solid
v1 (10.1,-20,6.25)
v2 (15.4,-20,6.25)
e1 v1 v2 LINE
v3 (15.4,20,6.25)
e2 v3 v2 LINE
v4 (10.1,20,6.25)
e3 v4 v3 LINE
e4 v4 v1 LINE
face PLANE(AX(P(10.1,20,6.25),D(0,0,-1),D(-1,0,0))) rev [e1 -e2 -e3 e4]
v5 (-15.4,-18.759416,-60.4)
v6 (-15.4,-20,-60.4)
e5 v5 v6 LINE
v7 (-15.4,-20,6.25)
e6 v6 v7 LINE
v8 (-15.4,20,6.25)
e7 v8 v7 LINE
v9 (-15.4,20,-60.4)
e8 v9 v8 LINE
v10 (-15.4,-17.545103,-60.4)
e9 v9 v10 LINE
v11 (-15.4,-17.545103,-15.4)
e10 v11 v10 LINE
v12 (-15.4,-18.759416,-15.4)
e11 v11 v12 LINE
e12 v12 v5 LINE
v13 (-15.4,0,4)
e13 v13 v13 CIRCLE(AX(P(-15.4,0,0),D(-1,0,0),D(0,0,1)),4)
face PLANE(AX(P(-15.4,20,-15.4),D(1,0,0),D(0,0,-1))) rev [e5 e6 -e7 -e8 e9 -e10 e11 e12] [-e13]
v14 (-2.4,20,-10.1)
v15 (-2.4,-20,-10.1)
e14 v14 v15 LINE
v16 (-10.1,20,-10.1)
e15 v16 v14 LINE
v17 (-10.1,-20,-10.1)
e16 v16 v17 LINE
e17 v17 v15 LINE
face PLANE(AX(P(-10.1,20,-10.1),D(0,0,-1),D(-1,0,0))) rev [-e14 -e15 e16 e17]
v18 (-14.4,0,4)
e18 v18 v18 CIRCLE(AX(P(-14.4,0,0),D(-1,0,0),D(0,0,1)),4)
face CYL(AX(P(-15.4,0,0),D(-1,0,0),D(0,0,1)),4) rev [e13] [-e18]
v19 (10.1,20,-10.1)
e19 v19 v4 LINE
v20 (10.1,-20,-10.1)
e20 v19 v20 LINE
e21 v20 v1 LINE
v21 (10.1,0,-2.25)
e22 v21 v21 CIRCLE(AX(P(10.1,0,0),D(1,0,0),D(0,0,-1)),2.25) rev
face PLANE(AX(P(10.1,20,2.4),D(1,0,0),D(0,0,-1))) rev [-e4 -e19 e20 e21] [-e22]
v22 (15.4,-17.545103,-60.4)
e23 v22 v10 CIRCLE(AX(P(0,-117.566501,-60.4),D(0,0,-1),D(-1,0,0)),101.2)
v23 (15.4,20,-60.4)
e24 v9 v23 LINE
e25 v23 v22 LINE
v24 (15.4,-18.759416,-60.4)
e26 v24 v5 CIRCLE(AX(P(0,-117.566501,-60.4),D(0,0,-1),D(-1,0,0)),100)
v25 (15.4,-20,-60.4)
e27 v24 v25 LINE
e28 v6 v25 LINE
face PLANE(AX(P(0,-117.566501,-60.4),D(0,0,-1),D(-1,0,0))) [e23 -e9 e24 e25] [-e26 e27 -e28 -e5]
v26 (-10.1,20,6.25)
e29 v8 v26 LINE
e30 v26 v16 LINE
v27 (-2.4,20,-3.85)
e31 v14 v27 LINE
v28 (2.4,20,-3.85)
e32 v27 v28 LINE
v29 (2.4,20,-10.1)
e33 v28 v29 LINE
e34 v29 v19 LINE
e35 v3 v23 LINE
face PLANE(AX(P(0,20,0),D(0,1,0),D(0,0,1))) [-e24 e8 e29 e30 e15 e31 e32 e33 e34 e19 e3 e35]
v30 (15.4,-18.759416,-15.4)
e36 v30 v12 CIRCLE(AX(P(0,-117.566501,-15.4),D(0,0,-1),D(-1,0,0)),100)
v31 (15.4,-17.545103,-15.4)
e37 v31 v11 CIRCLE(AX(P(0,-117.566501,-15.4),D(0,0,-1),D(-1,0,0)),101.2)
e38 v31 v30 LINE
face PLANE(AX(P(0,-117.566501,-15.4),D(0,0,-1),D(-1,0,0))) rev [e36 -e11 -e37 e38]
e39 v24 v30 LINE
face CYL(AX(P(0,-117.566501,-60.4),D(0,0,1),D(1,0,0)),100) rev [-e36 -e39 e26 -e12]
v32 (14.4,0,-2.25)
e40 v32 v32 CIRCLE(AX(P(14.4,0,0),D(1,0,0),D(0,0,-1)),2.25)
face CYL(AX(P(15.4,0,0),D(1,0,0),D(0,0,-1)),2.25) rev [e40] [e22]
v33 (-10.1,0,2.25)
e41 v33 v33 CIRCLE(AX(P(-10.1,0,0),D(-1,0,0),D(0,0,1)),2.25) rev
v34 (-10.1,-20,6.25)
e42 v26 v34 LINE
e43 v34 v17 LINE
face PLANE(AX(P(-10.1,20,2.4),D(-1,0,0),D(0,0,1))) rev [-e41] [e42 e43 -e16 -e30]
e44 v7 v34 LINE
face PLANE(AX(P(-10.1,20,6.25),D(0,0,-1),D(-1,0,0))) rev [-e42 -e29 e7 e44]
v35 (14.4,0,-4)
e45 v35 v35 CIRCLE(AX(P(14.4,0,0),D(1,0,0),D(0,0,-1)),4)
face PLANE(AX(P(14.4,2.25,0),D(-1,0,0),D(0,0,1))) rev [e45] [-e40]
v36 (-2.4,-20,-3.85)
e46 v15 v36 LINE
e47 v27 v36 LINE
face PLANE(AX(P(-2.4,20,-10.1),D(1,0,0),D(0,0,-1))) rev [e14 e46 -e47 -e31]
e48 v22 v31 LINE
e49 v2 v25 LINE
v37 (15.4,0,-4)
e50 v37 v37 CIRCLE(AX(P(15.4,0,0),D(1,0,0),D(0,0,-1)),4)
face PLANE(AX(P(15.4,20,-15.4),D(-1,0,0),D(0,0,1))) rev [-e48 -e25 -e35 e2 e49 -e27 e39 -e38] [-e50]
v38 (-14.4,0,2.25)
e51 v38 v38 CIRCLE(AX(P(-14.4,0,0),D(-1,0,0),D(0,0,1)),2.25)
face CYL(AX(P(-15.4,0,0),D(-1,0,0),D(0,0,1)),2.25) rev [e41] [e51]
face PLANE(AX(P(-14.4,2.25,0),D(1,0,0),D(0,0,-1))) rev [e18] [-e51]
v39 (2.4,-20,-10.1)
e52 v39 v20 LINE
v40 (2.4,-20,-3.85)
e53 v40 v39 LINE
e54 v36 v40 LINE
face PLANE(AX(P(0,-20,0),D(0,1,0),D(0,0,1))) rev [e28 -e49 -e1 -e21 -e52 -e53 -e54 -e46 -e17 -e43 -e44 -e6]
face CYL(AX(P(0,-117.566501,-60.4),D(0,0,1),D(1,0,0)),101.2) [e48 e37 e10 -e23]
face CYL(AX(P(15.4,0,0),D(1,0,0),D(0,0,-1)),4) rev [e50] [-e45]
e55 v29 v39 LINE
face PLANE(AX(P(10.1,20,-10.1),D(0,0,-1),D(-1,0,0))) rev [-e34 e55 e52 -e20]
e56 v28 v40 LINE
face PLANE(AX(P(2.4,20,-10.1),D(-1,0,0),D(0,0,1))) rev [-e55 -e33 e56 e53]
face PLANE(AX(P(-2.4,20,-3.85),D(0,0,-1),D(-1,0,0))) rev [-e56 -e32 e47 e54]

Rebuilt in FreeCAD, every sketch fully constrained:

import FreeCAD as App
import Part
import Sketcher
from FreeCAD import Vector
Q = App.Units.Quantity


def add_polygon(sketch, points):
    """Adds a closed chain of lines whose ends are joined by coincident constraints."""
    first, n = sketch.GeometryCount, len(points)
    for a, b in zip(points, points[1:] + points[:1]):
        sketch.addGeometry(Part.LineSegment(App.Vector(*a, 0), App.Vector(*b, 0)), False)
    for i in range(n):
        sketch.addConstraint(Sketcher.Constraint("Coincident", first + i, 2, first + (i + 1) % n, 1))

doc = App.newDocument("Part")
body = doc.addObject("PartDesign::Body", "Body")

# Sketch on XZ plane
sketch1 = doc.addObject("Sketcher::SketchObject", "Sketch")
body.addObject(sketch1)
sketch1.AttachmentSupport = (doc.XZ_Plane, [""])
sketch1.MapMode = "FlatFace"
add_polygon(sketch1, [(-3.9, 2.4), (-3.9, -2.4), (-10.1, -2.4), (-10.1, -10.1), (-2.4, -10.1), (-2.4, -3.9), (2.4, -3.9), (2.4, -10.1), (10.1, -10.1), (10.1, -2.4), (3.9, -2.4), (3.9, 2.4), (10.1, 2.4), (10.1, 6.2), (15.4, 6.2), (15.4, -15.4), (-15.4, -15.4), (-15.4, 6.2), (-10.1, 6.2), (-10.1, 2.4)])  # lines 0-19
sketch1.addConstraint([
    Sketcher.Constraint("Vertical", 0),
    Sketcher.Constraint("Horizontal", 1),
    Sketcher.Constraint("Vertical", 2),
    Sketcher.Constraint("Horizontal", 3),
    Sketcher.Constraint("Vertical", 4),
    Sketcher.Constraint("Horizontal", 5),
    Sketcher.Constraint("Vertical", 6),
    Sketcher.Constraint("Horizontal", 7),
    Sketcher.Constraint("Vertical", 8),
    Sketcher.Constraint("Horizontal", 9),
    Sketcher.Constraint("Vertical", 10),
    Sketcher.Constraint("Horizontal", 11),
    Sketcher.Constraint("Vertical", 12),
    Sketcher.Constraint("Horizontal", 13),
    Sketcher.Constraint("Vertical", 14),
    Sketcher.Constraint("Horizontal", 15),
    Sketcher.Constraint("Vertical", 16),
    Sketcher.Constraint("Horizontal", 17),
    Sketcher.Constraint("Vertical", 18),
    Sketcher.Constraint("Horizontal", 19),
    Sketcher.Constraint("Symmetric", 0, 2, 10, 2, -1, 1),
    Sketcher.Constraint("Symmetric", 8, 2, 18, 2, -1, 1),
    Sketcher.Constraint("Symmetric", 3, 2, 6, 2, -2),
    Sketcher.Constraint("Symmetric", 1, 2, 8, 2, -2),
    Sketcher.Constraint("Symmetric", 13, 2, 16, 2, -2),
    Sketcher.Constraint("Vertical", 8, 2, 11, 2),
    Sketcher.Constraint("Equal", 5, 0),
    Sketcher.Constraint("Equal", 7, 2),
    Sketcher.Constraint("Equal", 19, 4),
    Sketcher.Constraint("DistanceX", 3, 1, 3, 2, Q("7.7 mm")),
    Sketcher.Constraint("DistanceX", 5, 1, 5, 2, Q("4.8 mm")),
    Sketcher.Constraint("DistanceX", 13, 1, 13, 2, Q("5.3 mm")),
    Sketcher.Constraint("DistanceY", 14, 2, 8, 2, Q("13 mm")),
    Sketcher.Constraint("DistanceX", 1, 2, 1, 1, Q("6.25 mm")),
    Sketcher.Constraint("DistanceY", 12, 1, 12, 2, Q("3.85 mm")),
])
pad1 = doc.addObject("PartDesign::Pad", "Pad")
body.addObject(pad1)
pad1.Profile = sketch1
pad1.Length = 40
pad1.Midplane = True

# Sketch on YZ plane
sketch2 = doc.addObject("Sketcher::SketchObject", "Sketch001")
body.addObject(sketch2)
sketch2.AttachmentSupport = (doc.YZ_Plane, [""])
sketch2.MapMode = "FlatFace"
sketch2.AttachmentOffset = App.Placement(Vector(0, 0, 15.4), App.Rotation())
sketch2.addGeometry(Part.Circle(Vector(0, 0, 0), Vector(0, 0, 1), 2.2), False)
sketch2.addConstraint([
    Sketcher.Constraint("Coincident", 0, 3, -1, 1),
    Sketcher.Constraint("Diameter", 0, Q("4.5 mm")),
])
doc.recompute()
hole = doc.addObject("PartDesign::Hole", "Hole")
body.addObject(hole)
hole.Profile = sketch2
hole.ThreadType = "None"
hole.Diameter = 4.5
hole.DepthType = "Dimension"
hole.Depth = 11.55
hole.DrillPoint = "Flat"
hole.HoleCutType = "Counterbore"
hole.HoleCutDiameter = 8
hole.HoleCutDepth = 1
doc.recompute()

mirrored = doc.addObject("PartDesign::Mirrored", "Mirrored")
body.addObject(mirrored)
mirrored.Originals = [hole]
mirrored.MirrorPlane = (doc.YZ_Plane, [""])
body.Tip = mirrored

# Sketch on XY plane
sketch3 = doc.addObject("Sketcher::SketchObject", "Sketch002")
body.addObject(sketch3)
sketch3.AttachmentSupport = (doc.XY_Plane, [""])
sketch3.MapMode = "FlatFace"
add_polygon(sketch3, [(-10, 20), (-10, -20), (10, -20), (10, 20)])  # lines 0-3
sketch3.addConstraint([
    Sketcher.Constraint("Vertical", 0),
    Sketcher.Constraint("Horizontal", 1),
    Sketcher.Constraint("Vertical", 2),
    Sketcher.Constraint("Horizontal", 3),
    Sketcher.Constraint("Symmetric", 0, 2, 2, 2, -1, 1),
    Sketcher.Constraint("DistanceY", 0, 2, 0, 1, Q("40 mm")),
    Sketcher.Constraint("DistanceX", 1, 1, 1, 2, Q("20.2 mm")),
])
pocket1 = doc.addObject("PartDesign::Pocket", "Pocket")
body.addObject(pocket1)
pocket1.Profile = sketch3
pocket1.Length = 6
pocket1.Midplane = True

# Sketch on XY plane
sketch4 = doc.addObject("Sketcher::SketchObject", "Sketch003")
body.addObject(sketch4)
sketch4.AttachmentSupport = (doc.XY_Plane, [""])
sketch4.MapMode = "FlatFace"
sketch4.AttachmentOffset = App.Placement(Vector(0, 0, -15.4), App.Rotation())
sketch4.addGeometry([
    Part.Circle(Vector(0, -118, 0), Vector(0, 0, 1), 101),
    Part.Circle(Vector(0, -118, 0), Vector(0, 0, 1), 100),
], False)
sketch4.addConstraint([
    Sketcher.Constraint("Coincident", 1, 3, 0, 3),
    Sketcher.Constraint("PointOnObject", 0, 3, -2),
    Sketcher.Constraint("Diameter", 1, Q("200 mm")),
    Sketcher.Constraint("Diameter", 0, Q("202.4 mm")),
    Sketcher.Constraint("DistanceY", 0, 3, -1, 1, Q("117.566501 mm")),
])
pad2 = doc.addObject("PartDesign::Pad", "Pad001")
body.addObject(pad2)
pad2.Profile = sketch4
pad2.Length = 45
pad2.Reversed = True

# Sketch on XZ plane
sketch5 = doc.addObject("Sketcher::SketchObject", "Sketch004")
body.addObject(sketch5)
sketch5.AttachmentSupport = (doc.XZ_Plane, [""])
sketch5.MapMode = "FlatFace"
sketch5.AttachmentOffset = App.Placement(Vector(0, 0, 20), App.Rotation())
add_polygon(sketch5, [(-15, -15), (-15, -60), (15, -60), (15, -15)])  # lines 0-3
sketch5.addConstraint([
    Sketcher.Constraint("Vertical", 0),
    Sketcher.Constraint("Horizontal", 1),
    Sketcher.Constraint("Vertical", 2),
    Sketcher.Constraint("Horizontal", 3),
    Sketcher.Constraint("DistanceY", 0, 2, 0, 1, Q("45 mm")),
    Sketcher.Constraint("DistanceX", 1, 1, 1, 2, Q("30.8 mm")),
    Sketcher.Constraint("DistanceX", 0, 2, -1, 1, Q("15.4 mm")),
    Sketcher.Constraint("DistanceY", 0, 2, -1, 1, Q("60.4 mm")),
])
pad3 = doc.addObject("PartDesign::Pad", "Pad002")
body.addObject(pad3)
pad3.Profile = sketch5
pad3.Length = 40
pad3.Reversed = True

doc.recompute()
